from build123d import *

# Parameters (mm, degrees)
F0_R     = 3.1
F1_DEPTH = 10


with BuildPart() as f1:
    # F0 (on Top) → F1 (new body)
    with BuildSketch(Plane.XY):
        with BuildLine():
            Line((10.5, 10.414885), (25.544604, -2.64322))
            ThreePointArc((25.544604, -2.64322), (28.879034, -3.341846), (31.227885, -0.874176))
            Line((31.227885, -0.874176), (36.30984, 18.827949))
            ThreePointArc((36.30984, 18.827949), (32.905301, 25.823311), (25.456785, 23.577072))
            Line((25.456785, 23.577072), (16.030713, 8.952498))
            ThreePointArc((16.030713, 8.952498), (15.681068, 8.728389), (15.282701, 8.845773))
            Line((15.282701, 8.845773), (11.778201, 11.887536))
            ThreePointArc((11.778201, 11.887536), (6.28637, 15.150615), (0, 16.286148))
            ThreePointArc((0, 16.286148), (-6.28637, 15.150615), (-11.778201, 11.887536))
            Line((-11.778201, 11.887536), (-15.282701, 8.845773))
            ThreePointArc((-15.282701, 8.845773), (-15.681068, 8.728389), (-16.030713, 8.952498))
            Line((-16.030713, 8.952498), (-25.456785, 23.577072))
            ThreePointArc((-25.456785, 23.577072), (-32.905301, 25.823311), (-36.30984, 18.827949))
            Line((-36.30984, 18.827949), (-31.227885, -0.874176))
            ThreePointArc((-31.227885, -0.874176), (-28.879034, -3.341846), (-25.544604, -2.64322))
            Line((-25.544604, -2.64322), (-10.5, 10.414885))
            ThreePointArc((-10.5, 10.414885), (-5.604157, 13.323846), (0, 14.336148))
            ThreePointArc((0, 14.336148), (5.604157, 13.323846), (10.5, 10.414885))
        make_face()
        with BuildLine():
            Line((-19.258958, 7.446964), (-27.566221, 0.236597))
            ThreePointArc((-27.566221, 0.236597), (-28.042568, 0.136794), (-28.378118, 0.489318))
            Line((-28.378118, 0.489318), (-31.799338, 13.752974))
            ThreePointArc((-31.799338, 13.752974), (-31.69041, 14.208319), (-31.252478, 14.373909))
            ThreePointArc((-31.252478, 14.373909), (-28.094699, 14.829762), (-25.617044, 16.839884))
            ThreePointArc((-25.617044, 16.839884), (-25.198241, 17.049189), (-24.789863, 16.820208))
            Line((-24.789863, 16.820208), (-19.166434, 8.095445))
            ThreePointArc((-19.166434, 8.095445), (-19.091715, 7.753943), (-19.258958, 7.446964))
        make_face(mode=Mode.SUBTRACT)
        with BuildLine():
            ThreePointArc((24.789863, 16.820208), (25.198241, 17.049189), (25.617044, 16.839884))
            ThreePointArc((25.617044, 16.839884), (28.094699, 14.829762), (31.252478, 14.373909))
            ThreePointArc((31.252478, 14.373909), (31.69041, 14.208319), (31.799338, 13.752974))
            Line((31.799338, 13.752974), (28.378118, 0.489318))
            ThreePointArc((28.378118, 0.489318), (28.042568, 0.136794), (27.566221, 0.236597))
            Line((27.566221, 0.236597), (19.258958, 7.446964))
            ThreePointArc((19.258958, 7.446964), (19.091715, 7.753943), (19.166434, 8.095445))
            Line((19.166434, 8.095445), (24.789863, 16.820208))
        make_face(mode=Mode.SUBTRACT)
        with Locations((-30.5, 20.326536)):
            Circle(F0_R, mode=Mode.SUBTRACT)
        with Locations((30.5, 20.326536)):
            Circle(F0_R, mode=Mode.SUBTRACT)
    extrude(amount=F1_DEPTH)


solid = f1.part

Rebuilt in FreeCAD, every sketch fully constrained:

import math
import FreeCAD as App
import Part
import Sketcher

doc = App.newDocument("Part")
body = doc.addObject("PartDesign::Body", "Body")

sketch1 = body.newObject("Sketcher::SketchObject", "Sketch")
sketch1.AttachmentSupport = (doc.getObject("XY_Plane"), [""])
sketch1.MapMode = "FlatFace"
sketch1.addGeometry([
    Part.LineSegment(App.Vector(10.5, 10.414885, 0), App.Vector(25.544604, -2.64322, 0)),
    Part.ArcOfCircle(Part.Circle(App.Vector(27.838811, 0.000001, 0), App.Vector(0, 0, 1), 3.500001), math.radians(-130.956638), math.radians(-14.463598)),
    Part.LineSegment(App.Vector(31.227885, -0.874176, 0), App.Vector(36.30984, 18.827949, 0)),
    Part.ArcOfCircle(Part.Circle(App.Vector(30.5, 20.326536, 0), App.Vector(0, 0, 1), 6), math.radians(-14.463581), math.radians(147.196749)),
    Part.LineSegment(App.Vector(25.456785, 23.577072, 0), App.Vector(16.030713, 8.952498, 0)),
    Part.ArcOfCircle(Part.Circle(App.Vector(15.610445, 9.223377, 0), App.Vector(0, 0, 1), 0.500001), math.radians(-130.956548), math.radians(-32.803343)),
    Part.LineSegment(App.Vector(15.282701, 8.845773, 0), App.Vector(11.778201, 11.887536, 0)),
    Part.ArcOfCircle(Part.Circle(App.Vector(0.000001, -1.682451, 0), App.Vector(0, 0, 1), 17.968599), math.radians(49.04334), math.radians(90.000002)),
    Part.ArcOfCircle(Part.Circle(App.Vector(-0.000001, -1.682451, 0), App.Vector(0, 0, 1), 17.968599), math.radians(89.999998), math.radians(130.95666)),
    Part.LineSegment(App.Vector(-11.778201, 11.887536, 0), App.Vector(-15.282701, 8.845773, 0)),
    Part.ArcOfCircle(Part.Circle(App.Vector(-15.610445, 9.223377, 0), App.Vector(0, 0, 1), 0.500001), math.radians(-147.196657), math.radians(-49.043452)),
    Part.LineSegment(App.Vector(-16.030713, 8.952498, 0), App.Vector(-25.456785, 23.577072, 0)),
    Part.ArcOfCircle(Part.Circle(App.Vector(-30.5, 20.326536, 0), App.Vector(0, 0, 1), 6), math.radians(32.803251), math.radians(194.463581)),
    Part.LineSegment(App.Vector(-36.30984, 18.827949, 0), App.Vector(-31.227885, -0.874176, 0)),
    Part.ArcOfCircle(Part.Circle(App.Vector(-27.838811, 0.000001, 0), App.Vector(0, 0, 1), 3.500001), math.radians(-165.536402), math.radians(-49.043362)),
    Part.LineSegment(App.Vector(-25.544604, -2.64322, 0), App.Vector(-10.5, 10.414885, 0)),
    Part.ArcOfCircle(Part.Circle(App.Vector(-0.000001, -1.682452, 0), App.Vector(0, 0, 1), 16.0186), math.radians(89.999997), math.radians(130.956659)),
    Part.ArcOfCircle(Part.Circle(App.Vector(0.000001, -1.682452, 0), App.Vector(0, 0, 1), 16.0186), math.radians(49.043341), math.radians(90.000003)),
    Part.ArcOfCircle(Part.Circle(App.Vector(-19.586703, 7.824567, 0), App.Vector(0, 0, 1), 0.500001), math.radians(-49.043274), math.radians(32.803183)),
    Part.LineSegment(App.Vector(-19.258958, 7.446964, 0), App.Vector(-27.566221, 0.236597, 0)),
    Part.ArcOfCircle(Part.Circle(App.Vector(-27.893964, 0.614201, 0), App.Vector(0, 0, 1), 0.500001), math.radians(-165.536346), math.radians(-49.043485)),
    Part.LineSegment(App.Vector(-28.378118, 0.489318, 0), App.Vector(-31.799338, 13.752974, 0)),
    Part.ArcOfCircle(Part.Circle(App.Vector(-31.315184, 13.877856, 0), App.Vector(0, 0, 1), 0.500001), math.radians(82.795519), math.radians(194.463471)),
    Part.ArcOfCircle(Part.Circle(App.Vector(-30.499999, 20.326536, 0), App.Vector(0, 0, 1), 5.999999), math.radians(-97.204617), math.radians(-35.528561)),
    Part.ArcOfCircle(Part.Circle(App.Vector(-25.210131, 16.549331, 0), App.Vector(0, 0, 1), 0.499999), math.radians(32.803166), math.radians(144.47158)),
    Part.LineSegment(App.Vector(-24.789863, 16.820208, 0), App.Vector(-19.166434, 8.095445, 0)),
    Part.LineSegment(App.Vector(19.166434, 8.095445, 0), App.Vector(24.789863, 16.820208, 0)),
    Part.ArcOfCircle(Part.Circle(App.Vector(25.210131, 16.549331, 0), App.Vector(0, 0, 1), 0.499999), math.radians(35.52842), math.radians(147.196834)),
    Part.ArcOfCircle(Part.Circle(App.Vector(30.499999, 20.326536, 0), App.Vector(0, 0, 1), 5.999999), math.radians(-144.471439), math.radians(-82.795383)),
    Part.ArcOfCircle(Part.Circle(App.Vector(31.315184, 13.877856, 0), App.Vector(0, 0, 1), 0.500001), math.radians(-14.463471), math.radians(97.204481)),
    Part.LineSegment(App.Vector(31.799338, 13.752974, 0), App.Vector(28.378118, 0.489318, 0)),
    Part.ArcOfCircle(Part.Circle(App.Vector(27.893964, 0.614201, 0), App.Vector(0, 0, 1), 0.500001), math.radians(-130.956515), math.radians(-14.463654)),
    Part.LineSegment(App.Vector(27.566221, 0.236597, 0), App.Vector(19.258958, 7.446964, 0)),
    Part.ArcOfCircle(Part.Circle(App.Vector(19.586703, 7.824567, 0), App.Vector(0, 0, 1), 0.500001), math.radians(147.196817), math.radians(229.043274)),
    Part.Circle(App.Vector(-30.5, 20.326536, 0), App.Vector(0, 0, 1), 3.1),
    Part.Circle(App.Vector(30.5, 20.326536, 0), App.Vector(0, 0, 1), 3.1),
], False)
sketch1.addConstraint([
    Sketcher.Constraint("Tangent", 0, 2, 1, 1),
    Sketcher.Constraint("Tangent", 1, 2, 2, 1),
    Sketcher.Constraint("Tangent", 2, 2, 3, 1),
    Sketcher.Constraint("Tangent", 3, 2, 4, 1),
    Sketcher.Constraint("Tangent", 4, 2, 5, 2),
    Sketcher.Constraint("Tangent", 5, 1, 6, 1),
    Sketcher.Constraint("Tangent", 6, 2, 7, 1),
    Sketcher.Constraint("Tangent", 7, 2, 8, 1),
    Sketcher.Constraint("Tangent", 8, 2, 9, 1),
    Sketcher.Constraint("Tangent", 9, 2, 10, 2),
    Sketcher.Constraint("Tangent", 10, 1, 11, 1),
    Sketcher.Constraint("Tangent", 11, 2, 12, 1),
    Sketcher.Constraint("Tangent", 12, 2, 13, 1),
    Sketcher.Constraint("Tangent", 13, 2, 14, 1),
    Sketcher.Constraint("Tangent", 14, 2, 15, 1),
    Sketcher.Constraint("Tangent", 15, 2, 16, 2),
    Sketcher.Constraint("Tangent", 16, 1, 17, 2),
    Sketcher.Constraint("Tangent", 17, 1, 0, 1),
    Sketcher.Constraint("Tangent", 18, 1, 19, 1),
    Sketcher.Constraint("Coincident", 19, 2, 20, 2),
    Sketcher.Constraint("Tangent", 20, 1, 21, 1),
    Sketcher.Constraint("Tangent", 21, 2, 22, 2),
    Sketcher.Constraint("Coincident", 22, 1, 23, 1),
    Sketcher.Constraint("Coincident", 23, 2, 24, 2),
    Sketcher.Constraint("Tangent", 24, 1, 25, 1),
    Sketcher.Constraint("Tangent", 25, 2, 18, 2),
    Sketcher.Constraint("Tangent", 26, 2, 27, 2),
    Sketcher.Constraint("Coincident", 27, 1, 28, 1),
    Sketcher.Constraint("Coincident", 28, 2, 29, 2),
    Sketcher.Constraint("Tangent", 29, 1, 30, 1),
    Sketcher.Constraint("Tangent", 30, 2, 31, 2),
    Sketcher.Constraint("Coincident", 31, 1, 32, 1),
    Sketcher.Constraint("Tangent", 32, 2, 33, 2),
    Sketcher.Constraint("Tangent", 33, 1, 26, 1),
    Sketcher.Constraint("Coincident", 16, 3, 7, 3),
    Sketcher.Constraint("Coincident", 23, 3, 12, 3),
    Sketcher.Constraint("Coincident", 28, 3, 3, 3),
    Sketcher.Constraint("Coincident", 34, 3, 12, 3),
    Sketcher.Constraint("Coincident", 35, 3, 3, 3),
    Sketcher.Constraint("Equal", 7, 8),
    Sketcher.Constraint("Equal", 5, 10),
    Sketcher.Constraint("Equal", 3, 12),
    Sketcher.Constraint("Equal", 1, 14),
    Sketcher.Constraint("Equal", 16, 17),
    Sketcher.Constraint("Equal", 10, 18),
    Sketcher.Constraint("Equal", 18, 20),
    Sketcher.Constraint("Equal", 20, 22),
    Sketcher.Constraint("Equal", 12, 23),
    Sketcher.Constraint("Equal", 22, 24),
    Sketcher.Constraint("Equal", 24, 27),
    Sketcher.Constraint("Equal", 23, 28),
    Sketcher.Constraint("Equal", 27, 29),
    Sketcher.Constraint("Equal", 29, 31),
    Sketcher.Constraint("Equal", 31, 33),
    Sketcher.Constraint("Equal", 34, 35),
    Sketcher.Constraint("Symmetric", 1, 3, 14, 3, -1, 1),
    Sketcher.Constraint("Symmetric", 5, 3, 10, 3, -2),
    Sketcher.Constraint("Symmetric", 3, 3, 12, 3, -2),
    Sketcher.Constraint("Symmetric", 20, 3, 31, 3, -2),
    Sketcher.Constraint("Symmetric", 18, 3, 33, 3, -2),
    Sketcher.Constraint("Symmetric", 0, 2, 14, 2, -2),
    Sketcher.Constraint("PointOnObject", 7, 2, -2),
    Sketcher.Constraint("PointOnObject", 16, 1, -2),
    Sketcher.Constraint("Parallel", 0, 6),
    Sketcher.Constraint("Parallel", 15, 19),
    Sketcher.Constraint("Parallel", 13, 21),
    Sketcher.Constraint("Parallel", 11, 25),
    Sketcher.Constraint("Parallel", 4, 26),
    Sketcher.Constraint("Parallel", 2, 30),
    Sketcher.Constraint("Horizontal", 23, 2, 27, 1),
    Sketcher.Constraint("Horizontal", 22, 1, 28, 2),
    Sketcher.Constraint("Horizontal", 19, 2, 31, 1),
    Sketcher.Constraint("Radius", 3, 6.0),
    Sketcher.Constraint("Diameter", 34, 6.2),
    Sketcher.Constraint("Radius", 1, 3.500001),
    Sketcher.Constraint("Radius", 5, 0.500001),
    Sketcher.Constraint("Distance", 19, 11.0),
    Sketcher.Constraint("DistanceX", 12, 3, 3, 3, 61.000001),
    Sketcher.Constraint("DistanceX", 15, 2, -1, 1, 10.5),
    Sketcher.Constraint("Radius", 7, 17.968599),
    Sketcher.Constraint("Radius", 16, 16.0186),
    Sketcher.Constraint("DistanceX", 5, 1, 33, 3, 4.304002),
    Sketcher.Constraint("Distance", 0, 19.9212),
    Sketcher.Constraint("DistanceY", -1, 1, 20, 3, 0.614201),
    Sketcher.Constraint("DistanceX", -1, 1, 5, 1, 15.282701),
    Sketcher.Constraint("DistanceX", 1, 2, 29, 3, 0.087299),
    Sketcher.Constraint("DistanceX", 3, 2, 29, 3, 5.858399),
    Sketcher.Constraint("DistanceX", 22, 1, -1, 1, 31.252478),
    Sketcher.Constraint("DistanceY", 23, 2, 23, 3, 3.486652),
])
pad1 = body.newObject("PartDesign::Pad", "Pad")
pad1.Profile = sketch1
pad1.Length = 10

doc.recompute()
